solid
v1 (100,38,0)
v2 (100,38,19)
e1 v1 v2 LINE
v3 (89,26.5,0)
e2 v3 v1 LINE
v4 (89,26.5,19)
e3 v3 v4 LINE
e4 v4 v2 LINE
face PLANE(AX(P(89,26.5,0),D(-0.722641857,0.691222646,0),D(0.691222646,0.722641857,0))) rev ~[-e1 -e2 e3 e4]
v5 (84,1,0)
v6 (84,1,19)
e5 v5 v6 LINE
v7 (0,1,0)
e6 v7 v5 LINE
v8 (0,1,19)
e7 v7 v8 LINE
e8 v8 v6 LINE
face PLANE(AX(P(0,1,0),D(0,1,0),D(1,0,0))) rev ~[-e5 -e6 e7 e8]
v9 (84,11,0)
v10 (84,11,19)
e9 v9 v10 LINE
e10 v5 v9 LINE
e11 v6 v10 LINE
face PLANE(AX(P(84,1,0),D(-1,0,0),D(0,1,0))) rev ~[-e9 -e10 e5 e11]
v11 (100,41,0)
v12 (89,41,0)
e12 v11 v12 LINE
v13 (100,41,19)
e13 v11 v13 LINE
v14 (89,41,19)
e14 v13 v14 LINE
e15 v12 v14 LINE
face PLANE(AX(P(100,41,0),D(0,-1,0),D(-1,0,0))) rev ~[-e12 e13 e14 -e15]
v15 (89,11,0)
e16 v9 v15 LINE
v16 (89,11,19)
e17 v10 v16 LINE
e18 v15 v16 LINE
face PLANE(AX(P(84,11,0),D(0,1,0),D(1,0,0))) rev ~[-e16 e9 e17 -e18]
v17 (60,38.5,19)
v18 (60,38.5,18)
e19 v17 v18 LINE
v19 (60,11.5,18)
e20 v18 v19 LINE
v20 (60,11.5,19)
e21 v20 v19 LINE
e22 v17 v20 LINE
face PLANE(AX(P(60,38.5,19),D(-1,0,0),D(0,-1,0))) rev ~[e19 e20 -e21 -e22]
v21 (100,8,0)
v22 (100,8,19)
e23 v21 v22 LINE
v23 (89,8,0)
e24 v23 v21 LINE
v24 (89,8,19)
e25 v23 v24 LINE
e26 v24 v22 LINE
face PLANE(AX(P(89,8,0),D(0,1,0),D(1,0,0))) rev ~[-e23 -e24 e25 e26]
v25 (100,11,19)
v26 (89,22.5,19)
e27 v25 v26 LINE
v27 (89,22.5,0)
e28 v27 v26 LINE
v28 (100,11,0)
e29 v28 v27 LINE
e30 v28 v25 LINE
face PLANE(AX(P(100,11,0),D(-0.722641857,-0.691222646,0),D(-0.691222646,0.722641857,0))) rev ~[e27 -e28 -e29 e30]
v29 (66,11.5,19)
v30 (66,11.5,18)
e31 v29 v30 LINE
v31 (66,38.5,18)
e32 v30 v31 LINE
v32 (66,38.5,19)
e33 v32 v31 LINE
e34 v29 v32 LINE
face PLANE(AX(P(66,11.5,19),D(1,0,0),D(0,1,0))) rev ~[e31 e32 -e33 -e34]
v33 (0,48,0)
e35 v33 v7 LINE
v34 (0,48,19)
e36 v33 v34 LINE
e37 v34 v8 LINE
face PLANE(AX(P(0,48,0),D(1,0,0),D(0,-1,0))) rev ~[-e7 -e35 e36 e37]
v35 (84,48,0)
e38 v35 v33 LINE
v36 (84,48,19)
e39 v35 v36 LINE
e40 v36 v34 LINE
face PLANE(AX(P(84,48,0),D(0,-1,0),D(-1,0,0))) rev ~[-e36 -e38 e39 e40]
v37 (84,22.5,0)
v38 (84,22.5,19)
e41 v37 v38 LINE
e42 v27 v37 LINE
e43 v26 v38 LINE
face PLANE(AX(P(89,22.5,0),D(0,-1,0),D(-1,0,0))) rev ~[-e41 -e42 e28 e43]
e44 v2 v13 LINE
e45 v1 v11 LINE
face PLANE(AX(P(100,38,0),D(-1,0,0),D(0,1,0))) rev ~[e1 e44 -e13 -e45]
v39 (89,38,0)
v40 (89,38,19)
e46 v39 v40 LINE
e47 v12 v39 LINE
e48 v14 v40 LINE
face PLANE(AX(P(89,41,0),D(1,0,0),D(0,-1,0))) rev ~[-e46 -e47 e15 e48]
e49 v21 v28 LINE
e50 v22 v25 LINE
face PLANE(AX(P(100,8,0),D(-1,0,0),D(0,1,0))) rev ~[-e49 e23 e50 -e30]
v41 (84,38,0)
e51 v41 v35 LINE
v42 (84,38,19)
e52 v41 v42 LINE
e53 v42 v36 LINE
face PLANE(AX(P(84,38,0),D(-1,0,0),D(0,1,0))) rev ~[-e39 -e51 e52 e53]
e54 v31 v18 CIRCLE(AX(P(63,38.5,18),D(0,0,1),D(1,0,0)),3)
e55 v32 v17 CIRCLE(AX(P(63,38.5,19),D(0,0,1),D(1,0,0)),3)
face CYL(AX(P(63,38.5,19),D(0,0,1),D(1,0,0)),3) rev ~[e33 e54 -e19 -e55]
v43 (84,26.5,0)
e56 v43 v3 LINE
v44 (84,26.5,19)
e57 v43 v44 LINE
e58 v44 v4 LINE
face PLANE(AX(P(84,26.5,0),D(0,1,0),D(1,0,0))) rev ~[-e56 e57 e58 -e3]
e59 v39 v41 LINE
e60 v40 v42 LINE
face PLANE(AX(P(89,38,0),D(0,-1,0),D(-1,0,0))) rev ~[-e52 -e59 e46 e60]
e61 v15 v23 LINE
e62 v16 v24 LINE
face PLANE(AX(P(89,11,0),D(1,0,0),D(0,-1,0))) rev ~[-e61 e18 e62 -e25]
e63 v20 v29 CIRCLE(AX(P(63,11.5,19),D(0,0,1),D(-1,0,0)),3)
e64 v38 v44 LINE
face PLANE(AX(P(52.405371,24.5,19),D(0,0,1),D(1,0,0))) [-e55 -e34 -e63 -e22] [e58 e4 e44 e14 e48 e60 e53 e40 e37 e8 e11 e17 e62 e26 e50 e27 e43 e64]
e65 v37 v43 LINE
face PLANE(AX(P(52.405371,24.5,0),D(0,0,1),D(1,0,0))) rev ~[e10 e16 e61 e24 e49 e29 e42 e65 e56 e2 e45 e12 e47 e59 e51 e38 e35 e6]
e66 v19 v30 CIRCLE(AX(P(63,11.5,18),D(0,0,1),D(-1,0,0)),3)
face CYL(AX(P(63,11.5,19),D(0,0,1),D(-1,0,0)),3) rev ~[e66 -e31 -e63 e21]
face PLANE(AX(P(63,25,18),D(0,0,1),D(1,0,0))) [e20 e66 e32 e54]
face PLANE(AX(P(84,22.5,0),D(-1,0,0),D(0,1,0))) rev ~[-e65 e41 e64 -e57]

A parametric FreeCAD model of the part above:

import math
import FreeCAD as App
import Part
import Sketcher


def add_polygon(sketch, points):
    """Adds a closed chain of lines whose ends are joined by coincident constraints."""
    first, n = sketch.GeometryCount, len(points)
    for a, b in zip(points, points[1:] + points[:1]):
        sketch.addGeometry(Part.LineSegment(App.Vector(*a, 0), App.Vector(*b, 0)), False)
    for i in range(n):
        sketch.addConstraint(Sketcher.Constraint("Coincident", first + i, 2, first + (i + 1) % n, 1))

doc = App.newDocument("Part")
body = doc.addObject("PartDesign::Body", "Body")

# Sketch on XY plane
sketch1 = body.newObject("Sketcher::SketchObject", "Sketch")
sketch1.AttachmentSupport = (doc.getObject("XY_Plane"), [""])
sketch1.MapMode = "FlatFace"
add_polygon(sketch1, [(0, 48), (0, 1), (84, 1), (84, 11), (89, 11), (89, 8), (100, 8), (100, 11), (89, 22.5), (84, 22.5), (84, 26.5), (89, 26.5), (100, 38), (100, 41), (89, 41), (89, 38), (84, 38), (84, 48)])  # lines 0-17
sketch1.addConstraint(Sketcher.Constraint("Vertical", 0))
sketch1.addConstraint(Sketcher.Constraint("Horizontal", 1))
sketch1.addConstraint(Sketcher.Constraint("Vertical", 2))
sketch1.addConstraint(Sketcher.Constraint("Horizontal", 3))
sketch1.addConstraint(Sketcher.Constraint("Vertical", 4))
sketch1.addConstraint(Sketcher.Constraint("Horizontal", 5))
sketch1.addConstraint(Sketcher.Constraint("Vertical", 6))
sketch1.addConstraint(Sketcher.Constraint("Horizontal", 8))
sketch1.addConstraint(Sketcher.Constraint("Vertical", 9))
sketch1.addConstraint(Sketcher.Constraint("Horizontal", 10))
sketch1.addConstraint(Sketcher.Constraint("Vertical", 12))
sketch1.addConstraint(Sketcher.Constraint("Horizontal", 13))
sketch1.addConstraint(Sketcher.Constraint("Vertical", 14))
sketch1.addConstraint(Sketcher.Constraint("Horizontal", 15))
sketch1.addConstraint(Sketcher.Constraint("Vertical", 16))
sketch1.addConstraint(Sketcher.Constraint("Horizontal", 17))
sketch1.addConstraint(Sketcher.Constraint("PointOnObject", 0, 2, -2))
sketch1.addConstraint(Sketcher.Constraint("Horizontal", 3, 2, 6, 2))
sketch1.addConstraint(Sketcher.Constraint("Horizontal", 11, 2, 14, 2))
sketch1.addConstraint(Sketcher.Constraint("Vertical", 4, 2, 7, 2))
sketch1.addConstraint(Sketcher.Constraint("Vertical", 2, 2, 8, 2))
sketch1.addConstraint(Sketcher.Constraint("Vertical", 7, 2, 10, 2))
sketch1.addConstraint(Sketcher.Constraint("Vertical", 6, 2, 11, 2))
sketch1.addConstraint(Sketcher.Constraint("Vertical", 10, 2, 13, 2))
sketch1.addConstraint(Sketcher.Constraint("Vertical", 9, 2, 15, 2))
sketch1.addConstraint(Sketcher.Constraint("Equal", 6, 12))
sketch1.addConstraint(Sketcher.Constraint("Equal", 2, 16))
sketch1.addConstraint(Sketcher.Constraint("Equal", 7, 11))
sketch1.addConstraint(Sketcher.Constraint("DistanceX", 1, 1, 1, 2, 84.0))
sketch1.addConstraint(Sketcher.Constraint("DistanceX", 3, 1, 3, 2, 5.0))
sketch1.addConstraint(Sketcher.Constraint("DistanceX", 5, 1, 5, 2, 11.0))
sketch1.addConstraint(Sketcher.Constraint("DistanceY", 0, 2, 0, 1, 47.0))
sketch1.addConstraint(Sketcher.Constraint("DistanceY", 2, 1, 2, 2, 10.0))
sketch1.addConstraint(Sketcher.Constraint("DistanceY", 4, 2, 4, 1, 3.0))
sketch1.addConstraint(Sketcher.Constraint("DistanceY", 9, 1, 9, 2, 4.0))
sketch1.addConstraint(Sketcher.Constraint("DistanceY", -1, 1, 0, 2, 1.0))
pad1 = body.newObject("PartDesign::Pad", "Pad")
pad1.Profile = sketch1
pad1.Length = 19

# Sketch on XY plane
sketch2 = body.newObject("Sketcher::SketchObject", "Sketch001")
sketch2.AttachmentSupport = (doc.getObject("XY_Plane"), [""])
sketch2.MapMode = "FlatFace"
sketch2.AttachmentOffset = App.Placement(App.Vector(0, 0, 19), App.Rotation())
sketch2.addGeometry(Part.ArcOfCircle(Part.Circle(App.Vector(63, 38.5, 0), App.Vector(0, 0, 1), 3), math.radians(0), math.radians(180)), False)
sketch2.addGeometry(Part.LineSegment(App.Vector(60, 38.5, 0), App.Vector(60, 11.5, 0)), False)
sketch2.addGeometry(Part.ArcOfCircle(Part.Circle(App.Vector(63, 11.5, 0), App.Vector(0, 0, 1), 3), math.radians(180), math.radians(360)), False)
sketch2.addGeometry(Part.LineSegment(App.Vector(66, 11.5, 0), App.Vector(66, 38.5, 0)), False)
sketch2.addConstraint(Sketcher.Constraint("Tangent", 0, 2, 1, 1))
sketch2.addConstraint(Sketcher.Constraint("Tangent", 1, 2, 2, 1))
sketch2.addConstraint(Sketcher.Constraint("Tangent", 2, 2, 3, 1))
sketch2.addConstraint(Sketcher.Constraint("Tangent", 3, 2, 0, 1))
sketch2.addConstraint(Sketcher.Constraint("Vertical", 1))
sketch2.addConstraint(Sketcher.Constraint("Vertical", 3))
sketch2.addConstraint(Sketcher.Constraint("Radius", 0, 3.0))
sketch2.addConstraint(Sketcher.Constraint("DistanceY", 1, 2, 1, 1, 27.0))
sketch2.addConstraint(Sketcher.Constraint("DistanceX", -1, 1, 0, 3, 63.0))
sketch2.addConstraint(Sketcher.Constraint("DistanceY", -1, 1, 0, 3, 38.5))
pocket1 = body.newObject("PartDesign::Pocket", "Pocket")
pocket1.Profile = sketch2
pocket1.Length = 1

doc.recompute()
